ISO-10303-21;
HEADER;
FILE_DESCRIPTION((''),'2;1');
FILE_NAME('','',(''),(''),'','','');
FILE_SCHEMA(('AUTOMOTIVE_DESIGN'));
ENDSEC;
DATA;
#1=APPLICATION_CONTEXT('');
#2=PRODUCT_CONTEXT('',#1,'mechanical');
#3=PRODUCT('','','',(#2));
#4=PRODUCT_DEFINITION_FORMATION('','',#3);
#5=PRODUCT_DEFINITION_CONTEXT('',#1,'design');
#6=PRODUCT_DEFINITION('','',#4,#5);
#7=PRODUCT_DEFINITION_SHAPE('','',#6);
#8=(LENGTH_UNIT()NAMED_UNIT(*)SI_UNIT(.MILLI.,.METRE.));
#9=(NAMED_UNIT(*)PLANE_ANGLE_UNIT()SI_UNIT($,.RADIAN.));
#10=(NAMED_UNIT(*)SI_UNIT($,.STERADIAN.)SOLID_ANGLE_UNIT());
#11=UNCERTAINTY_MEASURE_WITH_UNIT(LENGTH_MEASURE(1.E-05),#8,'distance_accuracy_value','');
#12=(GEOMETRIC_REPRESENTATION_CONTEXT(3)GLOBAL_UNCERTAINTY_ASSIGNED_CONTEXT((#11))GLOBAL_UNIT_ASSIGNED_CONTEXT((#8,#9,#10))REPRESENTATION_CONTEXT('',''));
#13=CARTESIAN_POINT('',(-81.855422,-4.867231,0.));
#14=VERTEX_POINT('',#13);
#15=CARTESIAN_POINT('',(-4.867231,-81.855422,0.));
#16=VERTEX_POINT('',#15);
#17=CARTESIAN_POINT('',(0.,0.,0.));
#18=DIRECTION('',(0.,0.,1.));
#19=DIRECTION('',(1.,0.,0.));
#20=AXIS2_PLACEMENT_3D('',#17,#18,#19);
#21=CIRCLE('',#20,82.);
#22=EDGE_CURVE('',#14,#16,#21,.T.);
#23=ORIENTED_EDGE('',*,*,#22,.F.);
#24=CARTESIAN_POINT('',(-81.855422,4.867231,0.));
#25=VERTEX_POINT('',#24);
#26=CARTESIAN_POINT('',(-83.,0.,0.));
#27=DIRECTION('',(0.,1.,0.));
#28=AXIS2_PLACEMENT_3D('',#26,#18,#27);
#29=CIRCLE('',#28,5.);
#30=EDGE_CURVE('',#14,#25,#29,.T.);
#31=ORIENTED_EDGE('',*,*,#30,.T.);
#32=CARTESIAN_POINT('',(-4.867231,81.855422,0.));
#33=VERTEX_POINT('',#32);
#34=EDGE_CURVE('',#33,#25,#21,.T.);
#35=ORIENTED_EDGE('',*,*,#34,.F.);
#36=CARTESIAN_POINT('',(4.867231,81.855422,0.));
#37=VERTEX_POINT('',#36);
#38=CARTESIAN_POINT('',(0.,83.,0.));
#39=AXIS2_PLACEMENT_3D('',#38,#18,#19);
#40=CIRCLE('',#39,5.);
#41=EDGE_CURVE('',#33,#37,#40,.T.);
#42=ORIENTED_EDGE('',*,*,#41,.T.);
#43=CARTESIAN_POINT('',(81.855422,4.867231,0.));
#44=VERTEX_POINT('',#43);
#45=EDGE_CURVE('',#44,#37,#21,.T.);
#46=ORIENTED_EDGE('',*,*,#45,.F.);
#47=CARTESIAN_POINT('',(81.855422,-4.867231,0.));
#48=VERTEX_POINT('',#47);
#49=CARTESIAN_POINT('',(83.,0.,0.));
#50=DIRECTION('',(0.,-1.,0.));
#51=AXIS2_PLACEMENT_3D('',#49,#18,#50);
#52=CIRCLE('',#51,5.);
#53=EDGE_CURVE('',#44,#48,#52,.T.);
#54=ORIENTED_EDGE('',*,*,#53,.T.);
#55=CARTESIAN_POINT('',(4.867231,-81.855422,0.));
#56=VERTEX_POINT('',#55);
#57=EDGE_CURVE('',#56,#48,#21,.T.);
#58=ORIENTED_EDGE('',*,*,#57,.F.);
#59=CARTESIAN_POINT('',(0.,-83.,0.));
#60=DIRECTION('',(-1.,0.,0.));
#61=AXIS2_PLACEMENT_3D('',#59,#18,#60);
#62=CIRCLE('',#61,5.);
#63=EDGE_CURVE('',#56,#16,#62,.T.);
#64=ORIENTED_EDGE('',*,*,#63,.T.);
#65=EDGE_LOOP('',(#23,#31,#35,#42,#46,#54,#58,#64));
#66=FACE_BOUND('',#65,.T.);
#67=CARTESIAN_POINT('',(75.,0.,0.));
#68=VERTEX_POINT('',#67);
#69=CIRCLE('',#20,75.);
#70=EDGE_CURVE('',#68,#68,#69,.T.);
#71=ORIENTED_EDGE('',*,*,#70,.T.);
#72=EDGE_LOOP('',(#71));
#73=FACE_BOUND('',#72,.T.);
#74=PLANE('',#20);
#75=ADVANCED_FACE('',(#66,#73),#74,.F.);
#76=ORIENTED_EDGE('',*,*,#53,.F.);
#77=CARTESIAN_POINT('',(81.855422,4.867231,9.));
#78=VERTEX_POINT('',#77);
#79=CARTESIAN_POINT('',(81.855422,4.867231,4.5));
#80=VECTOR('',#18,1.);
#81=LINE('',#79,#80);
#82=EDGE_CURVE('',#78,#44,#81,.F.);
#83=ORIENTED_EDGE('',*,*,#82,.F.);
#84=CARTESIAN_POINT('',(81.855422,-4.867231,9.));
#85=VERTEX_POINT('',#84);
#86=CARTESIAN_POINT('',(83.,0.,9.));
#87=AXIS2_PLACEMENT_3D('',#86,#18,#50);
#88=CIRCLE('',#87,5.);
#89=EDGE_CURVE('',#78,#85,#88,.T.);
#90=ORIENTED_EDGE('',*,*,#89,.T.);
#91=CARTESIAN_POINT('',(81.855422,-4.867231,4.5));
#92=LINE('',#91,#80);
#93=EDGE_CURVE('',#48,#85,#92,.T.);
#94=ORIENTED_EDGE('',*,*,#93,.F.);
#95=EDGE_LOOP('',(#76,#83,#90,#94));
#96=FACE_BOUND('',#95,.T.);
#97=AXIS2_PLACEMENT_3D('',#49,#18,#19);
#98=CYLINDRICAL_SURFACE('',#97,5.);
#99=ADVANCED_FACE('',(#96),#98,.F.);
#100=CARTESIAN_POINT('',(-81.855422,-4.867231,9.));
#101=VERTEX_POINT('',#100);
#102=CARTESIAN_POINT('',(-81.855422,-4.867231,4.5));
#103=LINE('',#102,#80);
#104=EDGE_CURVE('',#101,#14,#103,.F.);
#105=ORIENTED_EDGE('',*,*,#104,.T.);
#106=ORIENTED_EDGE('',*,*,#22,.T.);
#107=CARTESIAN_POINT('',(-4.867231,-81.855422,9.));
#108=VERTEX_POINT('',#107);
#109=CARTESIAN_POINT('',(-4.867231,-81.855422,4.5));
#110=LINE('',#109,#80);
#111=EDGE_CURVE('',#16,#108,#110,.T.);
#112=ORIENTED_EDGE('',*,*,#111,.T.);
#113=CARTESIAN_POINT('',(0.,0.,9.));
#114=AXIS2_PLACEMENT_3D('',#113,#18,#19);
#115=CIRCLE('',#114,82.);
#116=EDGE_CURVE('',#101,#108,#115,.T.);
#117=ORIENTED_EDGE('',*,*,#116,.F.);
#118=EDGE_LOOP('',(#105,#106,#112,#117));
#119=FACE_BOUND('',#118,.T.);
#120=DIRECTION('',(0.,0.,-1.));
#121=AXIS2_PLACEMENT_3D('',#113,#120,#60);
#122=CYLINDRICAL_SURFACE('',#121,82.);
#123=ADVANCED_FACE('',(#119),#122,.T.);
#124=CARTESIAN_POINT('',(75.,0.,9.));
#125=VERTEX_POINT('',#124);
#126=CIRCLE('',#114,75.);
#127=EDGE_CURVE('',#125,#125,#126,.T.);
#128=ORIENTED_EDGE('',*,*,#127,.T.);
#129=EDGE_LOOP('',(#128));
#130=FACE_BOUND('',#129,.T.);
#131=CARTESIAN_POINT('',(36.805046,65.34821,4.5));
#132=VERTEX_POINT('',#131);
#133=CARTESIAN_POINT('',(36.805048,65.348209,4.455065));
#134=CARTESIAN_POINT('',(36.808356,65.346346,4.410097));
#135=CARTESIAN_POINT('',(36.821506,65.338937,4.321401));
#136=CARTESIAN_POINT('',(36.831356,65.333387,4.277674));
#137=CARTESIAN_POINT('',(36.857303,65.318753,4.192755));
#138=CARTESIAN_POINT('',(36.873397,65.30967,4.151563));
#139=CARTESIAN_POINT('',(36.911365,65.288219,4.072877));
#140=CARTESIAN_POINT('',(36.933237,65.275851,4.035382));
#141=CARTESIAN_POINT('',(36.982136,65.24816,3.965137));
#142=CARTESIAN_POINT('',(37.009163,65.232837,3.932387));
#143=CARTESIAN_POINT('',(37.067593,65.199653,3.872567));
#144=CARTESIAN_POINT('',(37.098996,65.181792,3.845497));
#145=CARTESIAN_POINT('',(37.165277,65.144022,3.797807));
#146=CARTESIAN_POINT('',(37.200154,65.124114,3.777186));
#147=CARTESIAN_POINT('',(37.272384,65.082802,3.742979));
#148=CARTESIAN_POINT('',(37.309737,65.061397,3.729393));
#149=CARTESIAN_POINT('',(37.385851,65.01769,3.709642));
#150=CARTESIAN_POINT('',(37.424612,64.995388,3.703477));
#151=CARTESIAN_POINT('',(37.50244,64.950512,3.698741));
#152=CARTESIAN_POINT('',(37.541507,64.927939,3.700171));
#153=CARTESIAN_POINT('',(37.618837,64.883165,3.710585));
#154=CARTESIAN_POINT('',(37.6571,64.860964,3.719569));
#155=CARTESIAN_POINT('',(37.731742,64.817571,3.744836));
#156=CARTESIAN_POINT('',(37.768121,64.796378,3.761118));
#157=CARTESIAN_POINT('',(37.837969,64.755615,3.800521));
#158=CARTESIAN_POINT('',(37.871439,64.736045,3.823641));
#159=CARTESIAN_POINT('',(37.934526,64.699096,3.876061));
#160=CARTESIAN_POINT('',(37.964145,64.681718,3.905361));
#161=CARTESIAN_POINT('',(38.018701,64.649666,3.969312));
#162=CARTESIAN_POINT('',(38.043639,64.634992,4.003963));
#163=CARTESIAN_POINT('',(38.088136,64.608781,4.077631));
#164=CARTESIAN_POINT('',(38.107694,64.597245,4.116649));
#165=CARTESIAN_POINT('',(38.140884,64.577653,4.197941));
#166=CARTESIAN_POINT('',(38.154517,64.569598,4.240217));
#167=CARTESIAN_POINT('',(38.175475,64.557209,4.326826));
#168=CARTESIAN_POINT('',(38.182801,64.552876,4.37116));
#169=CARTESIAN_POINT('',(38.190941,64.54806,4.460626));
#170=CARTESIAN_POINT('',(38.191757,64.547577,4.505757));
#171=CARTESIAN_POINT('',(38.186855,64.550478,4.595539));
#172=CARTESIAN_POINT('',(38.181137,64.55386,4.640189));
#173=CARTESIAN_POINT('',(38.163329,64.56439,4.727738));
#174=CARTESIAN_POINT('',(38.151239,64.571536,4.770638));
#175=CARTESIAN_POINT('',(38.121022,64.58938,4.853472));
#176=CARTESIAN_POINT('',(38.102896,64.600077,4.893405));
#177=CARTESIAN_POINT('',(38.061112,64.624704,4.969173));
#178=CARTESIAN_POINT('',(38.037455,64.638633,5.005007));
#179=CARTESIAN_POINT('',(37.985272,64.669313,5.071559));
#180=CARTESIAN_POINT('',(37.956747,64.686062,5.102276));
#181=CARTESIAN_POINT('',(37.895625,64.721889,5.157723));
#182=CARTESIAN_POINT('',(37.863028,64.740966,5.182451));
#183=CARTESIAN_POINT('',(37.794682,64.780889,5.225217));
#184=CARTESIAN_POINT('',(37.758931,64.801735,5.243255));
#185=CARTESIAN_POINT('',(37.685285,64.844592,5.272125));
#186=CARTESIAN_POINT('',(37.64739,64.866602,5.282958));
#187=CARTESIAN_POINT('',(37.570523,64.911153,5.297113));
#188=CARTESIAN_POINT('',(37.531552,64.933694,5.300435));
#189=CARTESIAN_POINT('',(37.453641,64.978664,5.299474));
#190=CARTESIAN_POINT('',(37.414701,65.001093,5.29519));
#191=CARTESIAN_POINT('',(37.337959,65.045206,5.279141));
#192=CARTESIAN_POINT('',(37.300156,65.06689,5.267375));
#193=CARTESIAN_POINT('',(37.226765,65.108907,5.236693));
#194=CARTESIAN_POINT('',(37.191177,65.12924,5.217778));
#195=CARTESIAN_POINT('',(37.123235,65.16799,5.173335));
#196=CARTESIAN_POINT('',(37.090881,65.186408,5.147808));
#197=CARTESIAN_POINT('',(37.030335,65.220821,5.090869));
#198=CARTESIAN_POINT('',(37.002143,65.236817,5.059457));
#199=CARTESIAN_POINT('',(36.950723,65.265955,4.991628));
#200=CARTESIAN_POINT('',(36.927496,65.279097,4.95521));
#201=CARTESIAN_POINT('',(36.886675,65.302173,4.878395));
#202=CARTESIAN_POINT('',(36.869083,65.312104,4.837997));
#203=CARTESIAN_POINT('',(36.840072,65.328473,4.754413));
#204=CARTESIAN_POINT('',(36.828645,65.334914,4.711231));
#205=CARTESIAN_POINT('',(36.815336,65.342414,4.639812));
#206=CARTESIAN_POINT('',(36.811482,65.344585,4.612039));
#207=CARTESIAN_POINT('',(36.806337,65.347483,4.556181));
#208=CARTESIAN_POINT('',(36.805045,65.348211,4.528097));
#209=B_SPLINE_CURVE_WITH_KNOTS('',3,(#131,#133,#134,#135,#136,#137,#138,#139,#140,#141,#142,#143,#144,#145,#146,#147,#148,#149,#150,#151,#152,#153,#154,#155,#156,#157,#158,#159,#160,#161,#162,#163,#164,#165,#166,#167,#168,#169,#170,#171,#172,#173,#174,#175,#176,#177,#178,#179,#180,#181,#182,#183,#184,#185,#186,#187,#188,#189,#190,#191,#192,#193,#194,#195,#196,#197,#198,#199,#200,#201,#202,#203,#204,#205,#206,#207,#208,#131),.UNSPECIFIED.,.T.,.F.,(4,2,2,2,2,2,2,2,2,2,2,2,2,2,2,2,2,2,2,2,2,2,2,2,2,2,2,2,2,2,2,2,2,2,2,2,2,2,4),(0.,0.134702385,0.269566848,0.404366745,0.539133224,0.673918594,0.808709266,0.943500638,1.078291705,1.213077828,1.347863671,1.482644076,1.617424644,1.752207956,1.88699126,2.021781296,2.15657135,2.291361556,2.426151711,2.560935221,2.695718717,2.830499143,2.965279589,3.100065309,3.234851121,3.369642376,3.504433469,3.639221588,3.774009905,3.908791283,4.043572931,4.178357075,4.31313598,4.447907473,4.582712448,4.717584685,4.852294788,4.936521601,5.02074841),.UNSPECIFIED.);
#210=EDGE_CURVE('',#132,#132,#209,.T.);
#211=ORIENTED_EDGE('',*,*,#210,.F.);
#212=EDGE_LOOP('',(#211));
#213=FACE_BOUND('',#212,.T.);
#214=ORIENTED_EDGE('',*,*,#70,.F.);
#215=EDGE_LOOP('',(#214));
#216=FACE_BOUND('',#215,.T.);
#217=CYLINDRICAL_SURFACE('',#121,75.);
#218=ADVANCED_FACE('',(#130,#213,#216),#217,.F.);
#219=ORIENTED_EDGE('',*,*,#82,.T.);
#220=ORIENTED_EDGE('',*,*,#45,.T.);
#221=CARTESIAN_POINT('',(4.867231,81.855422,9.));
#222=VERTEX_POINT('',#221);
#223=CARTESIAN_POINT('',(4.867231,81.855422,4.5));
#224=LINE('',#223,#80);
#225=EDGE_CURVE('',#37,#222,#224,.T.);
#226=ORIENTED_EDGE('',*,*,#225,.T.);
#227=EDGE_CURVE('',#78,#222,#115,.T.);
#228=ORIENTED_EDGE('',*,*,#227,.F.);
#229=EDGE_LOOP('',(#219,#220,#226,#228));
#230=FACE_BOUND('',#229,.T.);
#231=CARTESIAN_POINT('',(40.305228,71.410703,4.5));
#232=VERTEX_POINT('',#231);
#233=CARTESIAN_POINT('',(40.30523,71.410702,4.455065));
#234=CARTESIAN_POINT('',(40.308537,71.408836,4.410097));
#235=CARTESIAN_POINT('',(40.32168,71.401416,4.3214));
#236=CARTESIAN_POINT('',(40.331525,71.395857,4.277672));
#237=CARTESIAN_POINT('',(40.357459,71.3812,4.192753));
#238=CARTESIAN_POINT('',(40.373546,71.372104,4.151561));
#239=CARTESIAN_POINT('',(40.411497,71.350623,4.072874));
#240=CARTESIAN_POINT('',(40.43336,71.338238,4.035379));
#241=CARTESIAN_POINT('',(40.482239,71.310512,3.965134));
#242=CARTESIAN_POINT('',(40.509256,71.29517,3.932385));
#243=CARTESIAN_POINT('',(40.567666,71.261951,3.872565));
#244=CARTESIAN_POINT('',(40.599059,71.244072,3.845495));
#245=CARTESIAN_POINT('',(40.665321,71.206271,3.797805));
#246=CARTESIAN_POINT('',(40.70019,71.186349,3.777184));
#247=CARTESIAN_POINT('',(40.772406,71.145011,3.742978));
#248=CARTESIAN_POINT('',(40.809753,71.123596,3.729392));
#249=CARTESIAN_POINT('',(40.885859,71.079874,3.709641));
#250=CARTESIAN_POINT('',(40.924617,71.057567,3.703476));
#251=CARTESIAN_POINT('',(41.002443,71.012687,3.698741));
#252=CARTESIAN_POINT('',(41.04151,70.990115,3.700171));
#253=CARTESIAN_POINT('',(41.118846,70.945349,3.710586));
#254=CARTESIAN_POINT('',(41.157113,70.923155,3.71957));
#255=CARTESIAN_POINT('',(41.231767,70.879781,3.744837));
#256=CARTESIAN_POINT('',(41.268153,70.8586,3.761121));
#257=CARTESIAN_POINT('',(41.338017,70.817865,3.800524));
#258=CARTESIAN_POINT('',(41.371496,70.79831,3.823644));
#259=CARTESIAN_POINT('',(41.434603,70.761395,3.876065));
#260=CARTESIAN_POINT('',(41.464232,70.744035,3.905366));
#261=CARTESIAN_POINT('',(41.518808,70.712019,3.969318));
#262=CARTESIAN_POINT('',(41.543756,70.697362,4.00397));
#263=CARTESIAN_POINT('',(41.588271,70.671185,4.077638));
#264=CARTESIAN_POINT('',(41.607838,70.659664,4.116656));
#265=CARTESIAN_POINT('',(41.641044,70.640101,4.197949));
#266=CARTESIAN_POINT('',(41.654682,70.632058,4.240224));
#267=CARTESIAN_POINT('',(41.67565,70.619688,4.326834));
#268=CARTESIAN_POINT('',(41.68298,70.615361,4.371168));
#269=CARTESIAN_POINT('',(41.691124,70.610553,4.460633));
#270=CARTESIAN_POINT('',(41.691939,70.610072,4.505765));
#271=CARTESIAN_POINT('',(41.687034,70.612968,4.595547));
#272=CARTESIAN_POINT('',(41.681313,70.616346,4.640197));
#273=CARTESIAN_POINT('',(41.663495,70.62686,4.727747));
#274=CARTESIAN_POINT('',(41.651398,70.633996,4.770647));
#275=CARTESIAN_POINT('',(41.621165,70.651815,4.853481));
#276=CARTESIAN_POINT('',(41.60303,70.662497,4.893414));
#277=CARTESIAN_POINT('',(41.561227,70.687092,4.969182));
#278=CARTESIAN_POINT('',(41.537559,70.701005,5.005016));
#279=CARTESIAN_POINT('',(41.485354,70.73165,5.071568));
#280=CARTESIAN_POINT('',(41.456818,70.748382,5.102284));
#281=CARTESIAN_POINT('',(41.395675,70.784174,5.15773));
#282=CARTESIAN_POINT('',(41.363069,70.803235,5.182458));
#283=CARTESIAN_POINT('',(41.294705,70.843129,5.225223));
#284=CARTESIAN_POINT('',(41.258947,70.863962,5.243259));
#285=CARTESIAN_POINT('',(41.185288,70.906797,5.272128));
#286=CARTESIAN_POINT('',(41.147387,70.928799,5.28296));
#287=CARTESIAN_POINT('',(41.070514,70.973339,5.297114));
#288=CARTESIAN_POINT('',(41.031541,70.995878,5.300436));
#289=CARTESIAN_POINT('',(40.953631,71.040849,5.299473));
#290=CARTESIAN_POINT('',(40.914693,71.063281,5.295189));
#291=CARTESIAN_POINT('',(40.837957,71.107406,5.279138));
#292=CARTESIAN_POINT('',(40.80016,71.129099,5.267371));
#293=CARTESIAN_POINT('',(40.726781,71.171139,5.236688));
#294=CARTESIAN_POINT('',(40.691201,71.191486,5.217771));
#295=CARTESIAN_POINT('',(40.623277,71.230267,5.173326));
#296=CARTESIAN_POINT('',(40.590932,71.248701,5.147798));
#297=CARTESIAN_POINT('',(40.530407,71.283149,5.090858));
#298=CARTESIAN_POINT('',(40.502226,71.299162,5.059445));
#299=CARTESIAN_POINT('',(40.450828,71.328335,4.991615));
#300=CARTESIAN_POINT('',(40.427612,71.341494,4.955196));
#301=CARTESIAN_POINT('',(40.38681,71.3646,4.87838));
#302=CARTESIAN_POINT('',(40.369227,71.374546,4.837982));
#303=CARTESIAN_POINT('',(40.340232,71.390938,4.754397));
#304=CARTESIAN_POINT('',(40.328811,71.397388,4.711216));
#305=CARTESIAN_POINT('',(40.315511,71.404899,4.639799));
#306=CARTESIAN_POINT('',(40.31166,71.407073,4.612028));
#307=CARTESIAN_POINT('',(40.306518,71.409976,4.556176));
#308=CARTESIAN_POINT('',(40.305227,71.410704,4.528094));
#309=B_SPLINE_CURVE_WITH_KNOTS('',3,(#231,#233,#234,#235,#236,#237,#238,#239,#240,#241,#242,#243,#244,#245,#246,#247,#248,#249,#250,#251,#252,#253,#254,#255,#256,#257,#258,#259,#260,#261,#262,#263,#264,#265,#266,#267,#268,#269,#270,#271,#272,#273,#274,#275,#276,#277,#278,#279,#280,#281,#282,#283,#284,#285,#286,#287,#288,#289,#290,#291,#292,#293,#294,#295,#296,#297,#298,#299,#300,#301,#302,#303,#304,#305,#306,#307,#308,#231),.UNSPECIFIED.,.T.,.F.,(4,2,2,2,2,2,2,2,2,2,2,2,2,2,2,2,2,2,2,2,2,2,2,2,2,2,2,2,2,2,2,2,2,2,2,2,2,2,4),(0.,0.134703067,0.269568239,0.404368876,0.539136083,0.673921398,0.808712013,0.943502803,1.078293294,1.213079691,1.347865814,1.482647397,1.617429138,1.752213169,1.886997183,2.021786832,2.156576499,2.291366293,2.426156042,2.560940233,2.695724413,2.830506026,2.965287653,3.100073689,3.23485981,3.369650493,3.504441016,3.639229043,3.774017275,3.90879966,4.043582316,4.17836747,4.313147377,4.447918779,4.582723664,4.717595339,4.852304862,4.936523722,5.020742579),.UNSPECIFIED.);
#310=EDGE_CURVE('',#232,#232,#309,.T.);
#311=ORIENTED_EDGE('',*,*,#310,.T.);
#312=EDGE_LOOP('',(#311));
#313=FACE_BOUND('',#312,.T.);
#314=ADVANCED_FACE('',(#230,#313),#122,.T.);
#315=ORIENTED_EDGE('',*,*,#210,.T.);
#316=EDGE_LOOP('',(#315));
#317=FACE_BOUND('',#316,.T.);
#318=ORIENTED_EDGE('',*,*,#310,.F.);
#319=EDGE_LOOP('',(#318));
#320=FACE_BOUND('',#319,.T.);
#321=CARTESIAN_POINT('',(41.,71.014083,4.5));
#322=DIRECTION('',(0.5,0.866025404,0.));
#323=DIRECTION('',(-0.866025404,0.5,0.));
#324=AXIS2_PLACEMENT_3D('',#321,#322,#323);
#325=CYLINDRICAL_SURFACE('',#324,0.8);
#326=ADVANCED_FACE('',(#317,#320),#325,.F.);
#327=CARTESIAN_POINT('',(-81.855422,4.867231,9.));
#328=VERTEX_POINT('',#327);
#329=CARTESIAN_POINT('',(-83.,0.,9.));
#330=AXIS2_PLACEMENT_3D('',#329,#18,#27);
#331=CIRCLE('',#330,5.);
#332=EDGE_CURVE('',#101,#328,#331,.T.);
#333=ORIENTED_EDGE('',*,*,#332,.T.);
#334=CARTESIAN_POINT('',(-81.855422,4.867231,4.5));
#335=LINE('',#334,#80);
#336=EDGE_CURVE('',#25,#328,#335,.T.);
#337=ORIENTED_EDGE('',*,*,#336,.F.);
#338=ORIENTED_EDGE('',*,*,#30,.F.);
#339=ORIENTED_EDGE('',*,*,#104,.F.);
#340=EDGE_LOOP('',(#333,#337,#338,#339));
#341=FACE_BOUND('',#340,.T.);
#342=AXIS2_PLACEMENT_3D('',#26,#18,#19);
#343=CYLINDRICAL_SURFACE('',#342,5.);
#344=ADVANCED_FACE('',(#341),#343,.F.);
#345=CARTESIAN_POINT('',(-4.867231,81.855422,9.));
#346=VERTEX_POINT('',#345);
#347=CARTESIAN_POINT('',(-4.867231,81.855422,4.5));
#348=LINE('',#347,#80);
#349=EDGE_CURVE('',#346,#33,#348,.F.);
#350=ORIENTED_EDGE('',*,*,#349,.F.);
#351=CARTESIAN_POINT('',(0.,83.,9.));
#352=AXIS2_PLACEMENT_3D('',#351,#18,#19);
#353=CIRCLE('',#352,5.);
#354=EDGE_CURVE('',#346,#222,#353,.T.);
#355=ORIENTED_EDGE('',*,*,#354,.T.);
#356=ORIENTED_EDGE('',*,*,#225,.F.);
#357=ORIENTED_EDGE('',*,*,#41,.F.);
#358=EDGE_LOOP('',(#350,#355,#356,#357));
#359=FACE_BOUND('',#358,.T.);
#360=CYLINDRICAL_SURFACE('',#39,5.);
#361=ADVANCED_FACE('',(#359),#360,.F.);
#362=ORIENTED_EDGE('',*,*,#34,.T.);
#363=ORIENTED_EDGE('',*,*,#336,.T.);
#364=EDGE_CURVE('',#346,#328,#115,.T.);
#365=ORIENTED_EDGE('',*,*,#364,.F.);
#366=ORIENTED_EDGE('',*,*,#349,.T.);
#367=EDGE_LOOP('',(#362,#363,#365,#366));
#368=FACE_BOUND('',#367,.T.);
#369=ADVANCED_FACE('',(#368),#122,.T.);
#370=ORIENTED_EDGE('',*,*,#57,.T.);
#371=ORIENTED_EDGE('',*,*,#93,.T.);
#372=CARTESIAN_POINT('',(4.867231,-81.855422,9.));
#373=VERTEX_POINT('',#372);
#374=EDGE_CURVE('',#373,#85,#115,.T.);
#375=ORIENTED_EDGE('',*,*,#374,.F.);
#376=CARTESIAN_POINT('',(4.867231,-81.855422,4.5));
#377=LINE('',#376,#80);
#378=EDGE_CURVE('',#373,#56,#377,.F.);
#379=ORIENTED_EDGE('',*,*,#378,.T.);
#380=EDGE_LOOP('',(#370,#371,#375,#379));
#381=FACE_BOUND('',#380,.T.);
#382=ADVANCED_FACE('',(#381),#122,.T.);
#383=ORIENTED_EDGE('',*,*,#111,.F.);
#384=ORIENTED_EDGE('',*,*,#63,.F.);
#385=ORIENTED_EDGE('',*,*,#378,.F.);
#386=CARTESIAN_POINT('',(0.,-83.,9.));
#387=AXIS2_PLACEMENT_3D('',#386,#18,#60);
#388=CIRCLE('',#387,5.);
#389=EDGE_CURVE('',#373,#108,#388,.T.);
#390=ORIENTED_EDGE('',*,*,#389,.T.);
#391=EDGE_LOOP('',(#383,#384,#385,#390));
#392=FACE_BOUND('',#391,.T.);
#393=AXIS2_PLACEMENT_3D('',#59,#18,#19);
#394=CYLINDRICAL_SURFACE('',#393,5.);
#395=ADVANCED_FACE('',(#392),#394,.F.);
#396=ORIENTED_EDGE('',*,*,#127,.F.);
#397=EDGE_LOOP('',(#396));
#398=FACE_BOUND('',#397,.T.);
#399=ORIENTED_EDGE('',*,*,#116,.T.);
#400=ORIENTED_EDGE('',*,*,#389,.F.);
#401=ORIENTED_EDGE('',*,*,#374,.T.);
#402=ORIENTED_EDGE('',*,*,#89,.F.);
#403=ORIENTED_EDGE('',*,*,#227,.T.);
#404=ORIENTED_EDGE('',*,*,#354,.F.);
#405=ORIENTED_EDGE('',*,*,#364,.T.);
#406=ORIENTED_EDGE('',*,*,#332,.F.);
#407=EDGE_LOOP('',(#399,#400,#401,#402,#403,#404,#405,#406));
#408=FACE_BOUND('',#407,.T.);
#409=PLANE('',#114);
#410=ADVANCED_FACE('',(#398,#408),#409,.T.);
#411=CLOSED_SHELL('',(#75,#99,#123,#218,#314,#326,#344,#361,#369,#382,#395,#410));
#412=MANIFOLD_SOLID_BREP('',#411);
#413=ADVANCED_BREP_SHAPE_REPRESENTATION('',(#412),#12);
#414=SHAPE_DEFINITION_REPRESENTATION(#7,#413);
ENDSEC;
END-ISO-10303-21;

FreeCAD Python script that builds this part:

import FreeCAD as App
import Part
import Sketcher

doc = App.newDocument("Part")
body = doc.addObject("PartDesign::Body", "Body")

# Sketch on XY plane
sketch1 = doc.addObject("Sketcher::SketchObject", "Sketch")
body.addObject(sketch1)
sketch1.AttachmentSupport = (doc.XY_Plane, [""])
sketch1.MapMode = "FlatFace"
sketch1.addGeometry(Part.Circle(App.Vector(0, 0, 0), App.Vector(0, 0, 1), 82), False)
sketch1.addGeometry(Part.Circle(App.Vector(0, 0, 0), App.Vector(0, 0, 1), 75), False)
sketch1.addConstraint(Sketcher.Constraint("Coincident", 0, 3, -1, 1))
sketch1.addConstraint(Sketcher.Constraint("Coincident", 1, 3, -1, 1))
sketch1.addConstraint(Sketcher.Constraint("Diameter", 0, 164.0))
sketch1.addConstraint(Sketcher.Constraint("Diameter", 1, 150.0))
pad1 = doc.addObject("PartDesign::Pad", "Pad")
body.addObject(pad1)
pad1.Profile = sketch1
pad1.Length = 9

# Sketch on XY plane
sketch2 = doc.addObject("Sketcher::SketchObject", "Sketch001")
body.addObject(sketch2)
sketch2.AttachmentSupport = (doc.XY_Plane, [""])
sketch2.MapMode = "FlatFace"
sketch2.AttachmentOffset = App.Placement(App.Vector(0, 0, 9), App.Rotation())
sketch2.addGeometry(Part.Circle(App.Vector(0, 83, 0), App.Vector(0, 0, 1), 5), False)
sketch2.addConstraint(Sketcher.Constraint("PointOnObject", 0, 3, -2))
sketch2.addConstraint(Sketcher.Constraint("Diameter", 0, 10.0))
sketch2.addConstraint(Sketcher.Constraint("DistanceY", -1, 1, 0, 3, 83.0))
pocket1 = doc.addObject("PartDesign::Pocket", "Pocket")
body.addObject(pocket1)
pocket1.Profile = sketch2
pocket1.Type = "ThroughAll"
doc.recompute()

polarpattern = doc.addObject("PartDesign::PolarPattern", "PolarPattern")
body.addObject(polarpattern)
polarpattern.Originals = [pocket1]
polarpattern.Axis = (doc.Z_Axis, [""])
polarpattern.Angle = 360
polarpattern.Occurrences = 4
body.Tip = polarpattern

# Sketch on an angled plane
sketch3 = doc.addObject("Sketcher::SketchObject", "Sketch002")
body.addObject(sketch3)
sketch3.Placement = App.Placement(App.Vector(41, 71.014083, 0), App.Rotation(App.Vector(0.866025404, -0.5, 0), App.Vector(0, 0, -1), App.Vector(0.5, 0.866025404, 0), "ZXY"))
sketch3.addGeometry(Part.Circle(App.Vector(0, -4.5, 0), App.Vector(0, 0, 1), 0.8), False)
sketch3.addConstraint(Sketcher.Constraint("PointOnObject", 0, 3, -2))
sketch3.addConstraint(Sketcher.Constraint("Diameter", 0, 1.6))
sketch3.addConstraint(Sketcher.Constraint("DistanceY", 0, 3, -1, 1, 4.5))
doc.recompute()
hole = doc.addObject("PartDesign::Hole", "Hole")
body.addObject(hole)
hole.Profile = sketch3
hole.ThreadType = "None"
hole.Diameter = 1.6
hole.DepthType = "Dimension"
hole.Depth = 10
hole.DrillPoint = "Angled"
hole.DrillPointAngle = 118

doc.recompute()
